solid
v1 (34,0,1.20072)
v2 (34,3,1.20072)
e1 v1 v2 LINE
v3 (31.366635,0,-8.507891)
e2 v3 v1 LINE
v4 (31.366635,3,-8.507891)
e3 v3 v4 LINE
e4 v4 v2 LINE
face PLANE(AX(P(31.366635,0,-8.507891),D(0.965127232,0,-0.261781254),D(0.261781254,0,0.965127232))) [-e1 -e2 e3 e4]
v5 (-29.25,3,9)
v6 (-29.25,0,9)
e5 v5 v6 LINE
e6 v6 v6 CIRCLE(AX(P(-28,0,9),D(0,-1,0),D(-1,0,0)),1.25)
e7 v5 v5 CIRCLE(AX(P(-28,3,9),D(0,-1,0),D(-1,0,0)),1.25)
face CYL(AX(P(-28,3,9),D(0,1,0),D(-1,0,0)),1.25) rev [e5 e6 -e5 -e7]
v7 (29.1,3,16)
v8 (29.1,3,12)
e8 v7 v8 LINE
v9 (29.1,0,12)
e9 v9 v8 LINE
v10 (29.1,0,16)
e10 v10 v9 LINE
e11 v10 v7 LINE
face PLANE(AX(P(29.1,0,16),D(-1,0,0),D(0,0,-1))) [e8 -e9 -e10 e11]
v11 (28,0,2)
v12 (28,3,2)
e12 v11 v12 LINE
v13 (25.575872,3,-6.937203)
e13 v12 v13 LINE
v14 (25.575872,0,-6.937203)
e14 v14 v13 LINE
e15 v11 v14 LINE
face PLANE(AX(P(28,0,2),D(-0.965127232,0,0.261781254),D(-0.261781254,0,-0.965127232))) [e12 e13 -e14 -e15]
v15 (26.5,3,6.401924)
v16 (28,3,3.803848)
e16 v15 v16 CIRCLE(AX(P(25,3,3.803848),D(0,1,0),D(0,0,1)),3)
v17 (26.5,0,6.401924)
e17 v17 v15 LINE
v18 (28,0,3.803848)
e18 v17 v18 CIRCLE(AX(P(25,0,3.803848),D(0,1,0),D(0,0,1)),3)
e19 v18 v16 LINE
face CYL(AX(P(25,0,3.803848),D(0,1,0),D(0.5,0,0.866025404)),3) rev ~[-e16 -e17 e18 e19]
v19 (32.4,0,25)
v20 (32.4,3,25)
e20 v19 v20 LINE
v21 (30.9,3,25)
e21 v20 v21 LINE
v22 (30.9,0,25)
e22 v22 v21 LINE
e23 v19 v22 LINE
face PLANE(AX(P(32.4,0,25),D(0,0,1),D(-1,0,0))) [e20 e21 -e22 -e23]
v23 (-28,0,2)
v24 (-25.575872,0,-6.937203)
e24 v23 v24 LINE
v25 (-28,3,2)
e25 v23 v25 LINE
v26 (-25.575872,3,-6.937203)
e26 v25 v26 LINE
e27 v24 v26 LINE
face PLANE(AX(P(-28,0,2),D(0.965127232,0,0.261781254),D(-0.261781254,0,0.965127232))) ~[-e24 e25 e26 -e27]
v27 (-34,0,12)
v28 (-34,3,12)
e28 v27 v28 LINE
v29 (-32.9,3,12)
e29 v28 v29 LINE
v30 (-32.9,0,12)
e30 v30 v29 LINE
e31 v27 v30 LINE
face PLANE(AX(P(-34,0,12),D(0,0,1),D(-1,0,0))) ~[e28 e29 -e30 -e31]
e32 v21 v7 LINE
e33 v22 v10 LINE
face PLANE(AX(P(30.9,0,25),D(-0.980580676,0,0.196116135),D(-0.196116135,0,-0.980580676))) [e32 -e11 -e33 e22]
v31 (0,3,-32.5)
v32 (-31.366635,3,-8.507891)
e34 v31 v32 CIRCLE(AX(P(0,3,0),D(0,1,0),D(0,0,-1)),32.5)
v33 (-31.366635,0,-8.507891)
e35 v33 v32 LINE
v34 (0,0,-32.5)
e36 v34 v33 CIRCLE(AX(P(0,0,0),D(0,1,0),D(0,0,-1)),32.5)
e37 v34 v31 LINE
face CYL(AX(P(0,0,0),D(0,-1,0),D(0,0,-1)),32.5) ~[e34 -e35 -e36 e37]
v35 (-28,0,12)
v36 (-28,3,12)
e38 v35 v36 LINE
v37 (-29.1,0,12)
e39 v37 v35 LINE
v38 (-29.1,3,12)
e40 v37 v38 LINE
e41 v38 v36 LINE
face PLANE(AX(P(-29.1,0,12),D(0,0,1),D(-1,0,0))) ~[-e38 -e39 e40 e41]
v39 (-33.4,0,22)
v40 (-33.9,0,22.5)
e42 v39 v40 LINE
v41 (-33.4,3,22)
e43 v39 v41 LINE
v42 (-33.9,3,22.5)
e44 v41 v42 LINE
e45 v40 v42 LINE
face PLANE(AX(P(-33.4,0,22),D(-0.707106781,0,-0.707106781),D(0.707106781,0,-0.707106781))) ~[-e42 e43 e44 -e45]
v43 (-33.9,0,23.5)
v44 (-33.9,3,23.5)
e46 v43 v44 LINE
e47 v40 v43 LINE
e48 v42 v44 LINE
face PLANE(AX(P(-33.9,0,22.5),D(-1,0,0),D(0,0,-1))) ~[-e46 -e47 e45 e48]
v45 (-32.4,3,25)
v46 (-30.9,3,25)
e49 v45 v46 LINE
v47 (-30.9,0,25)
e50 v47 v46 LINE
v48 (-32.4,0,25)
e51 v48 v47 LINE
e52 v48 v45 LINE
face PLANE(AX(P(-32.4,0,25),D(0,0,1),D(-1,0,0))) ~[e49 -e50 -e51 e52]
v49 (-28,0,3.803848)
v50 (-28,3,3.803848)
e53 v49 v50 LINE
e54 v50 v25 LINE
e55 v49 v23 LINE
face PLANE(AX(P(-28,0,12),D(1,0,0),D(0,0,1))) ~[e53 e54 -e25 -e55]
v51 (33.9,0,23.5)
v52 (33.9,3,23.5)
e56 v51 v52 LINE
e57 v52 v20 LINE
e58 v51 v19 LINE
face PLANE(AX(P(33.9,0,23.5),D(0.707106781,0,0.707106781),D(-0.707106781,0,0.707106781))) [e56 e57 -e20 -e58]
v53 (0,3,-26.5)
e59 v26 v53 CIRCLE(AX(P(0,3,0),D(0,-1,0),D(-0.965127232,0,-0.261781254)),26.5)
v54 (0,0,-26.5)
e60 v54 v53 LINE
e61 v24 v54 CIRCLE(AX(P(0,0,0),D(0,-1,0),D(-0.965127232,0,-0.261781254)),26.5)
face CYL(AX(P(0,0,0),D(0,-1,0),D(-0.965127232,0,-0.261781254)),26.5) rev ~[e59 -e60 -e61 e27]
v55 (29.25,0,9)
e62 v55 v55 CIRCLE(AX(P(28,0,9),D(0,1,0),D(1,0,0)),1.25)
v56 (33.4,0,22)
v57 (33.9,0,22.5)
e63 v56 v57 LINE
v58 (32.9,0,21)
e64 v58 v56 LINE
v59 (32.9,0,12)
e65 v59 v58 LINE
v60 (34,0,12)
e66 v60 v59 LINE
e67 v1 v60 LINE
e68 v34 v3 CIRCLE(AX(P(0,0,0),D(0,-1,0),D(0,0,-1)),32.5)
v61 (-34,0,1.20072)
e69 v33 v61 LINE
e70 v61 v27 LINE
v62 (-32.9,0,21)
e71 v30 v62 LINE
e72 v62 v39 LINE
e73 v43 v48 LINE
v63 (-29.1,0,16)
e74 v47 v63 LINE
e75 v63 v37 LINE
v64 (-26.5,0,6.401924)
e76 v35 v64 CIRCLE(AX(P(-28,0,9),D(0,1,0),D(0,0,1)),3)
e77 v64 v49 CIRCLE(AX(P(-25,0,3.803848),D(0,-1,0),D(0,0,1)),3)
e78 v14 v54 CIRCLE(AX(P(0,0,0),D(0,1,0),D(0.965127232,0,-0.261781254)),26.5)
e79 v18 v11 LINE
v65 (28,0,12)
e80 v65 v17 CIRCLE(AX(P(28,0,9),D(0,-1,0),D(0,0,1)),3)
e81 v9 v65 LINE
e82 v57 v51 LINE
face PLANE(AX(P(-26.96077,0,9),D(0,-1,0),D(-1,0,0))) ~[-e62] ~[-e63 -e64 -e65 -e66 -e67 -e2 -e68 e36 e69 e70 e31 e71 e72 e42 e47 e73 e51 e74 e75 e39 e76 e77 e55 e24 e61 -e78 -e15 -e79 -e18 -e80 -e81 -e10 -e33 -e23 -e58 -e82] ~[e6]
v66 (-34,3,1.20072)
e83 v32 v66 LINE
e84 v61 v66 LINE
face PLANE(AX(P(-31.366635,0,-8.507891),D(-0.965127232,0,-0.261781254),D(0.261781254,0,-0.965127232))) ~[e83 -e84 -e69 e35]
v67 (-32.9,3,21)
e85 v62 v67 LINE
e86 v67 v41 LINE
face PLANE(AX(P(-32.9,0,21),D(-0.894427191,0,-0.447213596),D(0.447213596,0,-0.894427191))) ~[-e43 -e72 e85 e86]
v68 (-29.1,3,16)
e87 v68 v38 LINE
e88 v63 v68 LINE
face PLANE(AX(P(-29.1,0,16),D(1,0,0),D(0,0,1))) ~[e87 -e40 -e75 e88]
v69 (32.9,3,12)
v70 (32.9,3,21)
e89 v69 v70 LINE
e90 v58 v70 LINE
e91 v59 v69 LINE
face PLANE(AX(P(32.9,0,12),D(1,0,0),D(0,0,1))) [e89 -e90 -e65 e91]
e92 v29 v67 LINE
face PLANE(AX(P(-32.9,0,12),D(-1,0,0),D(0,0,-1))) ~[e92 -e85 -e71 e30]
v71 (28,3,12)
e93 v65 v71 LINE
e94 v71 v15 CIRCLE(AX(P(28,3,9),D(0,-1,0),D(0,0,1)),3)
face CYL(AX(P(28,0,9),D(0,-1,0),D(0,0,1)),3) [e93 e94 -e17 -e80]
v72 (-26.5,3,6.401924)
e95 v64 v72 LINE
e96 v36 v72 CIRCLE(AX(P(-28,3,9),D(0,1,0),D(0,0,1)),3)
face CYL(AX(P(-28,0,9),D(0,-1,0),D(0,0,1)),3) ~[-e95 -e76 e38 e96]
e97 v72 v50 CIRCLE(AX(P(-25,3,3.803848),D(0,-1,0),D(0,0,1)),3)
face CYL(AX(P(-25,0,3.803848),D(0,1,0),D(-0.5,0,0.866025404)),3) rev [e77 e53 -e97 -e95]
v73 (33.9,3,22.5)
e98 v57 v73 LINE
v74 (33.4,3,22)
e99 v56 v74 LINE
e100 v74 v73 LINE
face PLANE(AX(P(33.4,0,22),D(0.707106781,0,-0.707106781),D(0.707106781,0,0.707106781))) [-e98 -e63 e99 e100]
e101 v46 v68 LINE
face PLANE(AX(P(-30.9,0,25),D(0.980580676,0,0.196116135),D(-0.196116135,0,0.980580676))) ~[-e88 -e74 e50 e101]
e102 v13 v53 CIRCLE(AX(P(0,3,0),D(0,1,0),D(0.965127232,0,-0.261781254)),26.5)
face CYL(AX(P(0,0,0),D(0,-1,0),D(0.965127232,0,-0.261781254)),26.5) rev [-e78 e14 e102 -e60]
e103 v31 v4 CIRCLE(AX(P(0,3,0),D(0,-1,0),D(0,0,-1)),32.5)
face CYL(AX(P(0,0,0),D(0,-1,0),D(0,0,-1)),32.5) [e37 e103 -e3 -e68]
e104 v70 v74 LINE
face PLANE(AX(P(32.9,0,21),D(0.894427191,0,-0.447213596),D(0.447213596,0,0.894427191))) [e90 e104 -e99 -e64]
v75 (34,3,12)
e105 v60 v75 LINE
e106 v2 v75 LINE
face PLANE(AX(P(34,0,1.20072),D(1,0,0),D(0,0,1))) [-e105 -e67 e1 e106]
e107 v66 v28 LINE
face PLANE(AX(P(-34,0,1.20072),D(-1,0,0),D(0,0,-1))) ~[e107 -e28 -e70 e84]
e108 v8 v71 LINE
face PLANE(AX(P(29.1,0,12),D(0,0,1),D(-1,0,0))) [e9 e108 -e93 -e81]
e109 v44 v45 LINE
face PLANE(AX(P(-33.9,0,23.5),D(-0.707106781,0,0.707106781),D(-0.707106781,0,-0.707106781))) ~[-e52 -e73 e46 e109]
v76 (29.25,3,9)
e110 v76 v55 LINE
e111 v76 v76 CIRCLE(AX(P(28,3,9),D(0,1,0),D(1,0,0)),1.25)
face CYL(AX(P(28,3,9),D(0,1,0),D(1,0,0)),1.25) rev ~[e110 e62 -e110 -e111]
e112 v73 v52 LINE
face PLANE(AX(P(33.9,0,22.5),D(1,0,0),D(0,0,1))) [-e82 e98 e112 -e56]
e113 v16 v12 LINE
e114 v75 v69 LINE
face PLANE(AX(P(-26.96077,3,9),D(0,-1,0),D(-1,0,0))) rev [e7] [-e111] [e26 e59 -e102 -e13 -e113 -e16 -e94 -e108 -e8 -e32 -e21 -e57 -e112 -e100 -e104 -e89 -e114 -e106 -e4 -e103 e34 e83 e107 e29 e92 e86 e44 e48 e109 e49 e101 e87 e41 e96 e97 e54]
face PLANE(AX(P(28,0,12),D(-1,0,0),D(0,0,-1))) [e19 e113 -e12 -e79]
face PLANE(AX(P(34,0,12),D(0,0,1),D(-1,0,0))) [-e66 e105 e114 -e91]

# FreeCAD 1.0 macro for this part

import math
import FreeCAD as App
import Part
import Sketcher
from FreeCAD import Vector
Q = App.Units.Quantity


def edges_at(feature, points):
    """Names of the edges that pass closest to the given points."""
    edges = feature.Shape.Edges
    near = lambda p: min(range(len(edges)), key=lambda i: edges[i].distToShape(Part.Vertex(*p))[0])
    return sorted({f"Edge{near(p) + 1}" for p in points})

doc = App.newDocument("Part")
body = doc.addObject("PartDesign::Body", "Body")

sketch1 = doc.addObject("Sketcher::SketchObject", "Sketch")
body.addObject(sketch1)
sketch1.AttachmentSupport = (doc.XZ_Plane, [""])
sketch1.MapMode = "FlatFace"
sketch1.addGeometry([
    Part.LineSegment(Vector(29.1, 12, 0), Vector(29.1, 16, 0)),
    Part.LineSegment(Vector(29.1, 16, 0), Vector(30.9, 25, 0)),
    Part.LineSegment(Vector(30.9, 25, 0), Vector(32.4, 25, 0)),
    Part.LineSegment(Vector(32.4, 25, 0), Vector(33.9, 23.5, 0)),
    Part.LineSegment(Vector(33.9, 23.5, 0), Vector(33.9, 22.5, 0)),
    Part.LineSegment(Vector(33.9, 22.5, 0), Vector(33.4, 22, 0)),
    Part.LineSegment(Vector(33.4, 22, 0), Vector(32.9, 21, 0)),
    Part.LineSegment(Vector(32.9, 21, 0), Vector(32.9, 12, 0)),
    Part.LineSegment(Vector(32.9, 12, 0), Vector(34, 12, 0)),
    Part.LineSegment(Vector(34, 12, 0), Vector(34, 1.2, 0)),
    Part.LineSegment(Vector(34, 1.2, 0), Vector(31.4, -8.5, 0)),
    Part.ArcOfCircle(Part.Circle(Vector(0, 0, 0), Vector(0, 0, 1), 32.5), math.radians(-90), math.radians(-15)),
    Part.LineSegment(Vector(0, -32.5, 0), Vector(0, -26.5, 0)),
    Part.ArcOfCircle(Part.Circle(Vector(0, 0, 0), Vector(0, 0, 1), 26.5), math.radians(-90), math.radians(-15)),
    Part.LineSegment(Vector(25.6, -6.9, 0), Vector(28, 2, 0)),
    Part.LineSegment(Vector(28, 2, 0), Vector(28, 12, 0)),
    Part.LineSegment(Vector(28, 12, 0), Vector(29.1, 12, 0)),
], False)
sketch1.addConstraint([
    Sketcher.Constraint("Coincident", 0, 2, 1, 1),
    Sketcher.Constraint("Coincident", 1, 2, 2, 1),
    Sketcher.Constraint("Coincident", 2, 2, 3, 1),
    Sketcher.Constraint("Coincident", 3, 2, 4, 1),
    Sketcher.Constraint("Coincident", 4, 2, 5, 1),
    Sketcher.Constraint("Coincident", 5, 2, 6, 1),
    Sketcher.Constraint("Coincident", 6, 2, 7, 1),
    Sketcher.Constraint("Coincident", 7, 2, 8, 1),
    Sketcher.Constraint("Coincident", 8, 2, 9, 1),
    Sketcher.Constraint("Coincident", 9, 2, 10, 1),
    Sketcher.Constraint("Tangent", 10, 2, 11, 2),
    Sketcher.Constraint("Coincident", 11, 1, 12, 1),
    Sketcher.Constraint("Coincident", 12, 2, 13, 1),
    Sketcher.Constraint("Tangent", 13, 2, 14, 1),
    Sketcher.Constraint("Coincident", 14, 2, 15, 1),
    Sketcher.Constraint("Coincident", 15, 2, 16, 1),
    Sketcher.Constraint("Coincident", 16, 2, 0, 1),
    Sketcher.Constraint("Vertical", 0),
    Sketcher.Constraint("Horizontal", 2),
    Sketcher.Constraint("Vertical", 4),
    Sketcher.Constraint("Vertical", 7),
    Sketcher.Constraint("Horizontal", 8),
    Sketcher.Constraint("Vertical", 9),
    Sketcher.Constraint("Vertical", 12),
    Sketcher.Constraint("Vertical", 15),
    Sketcher.Constraint("Horizontal", 16),
    Sketcher.Constraint("Coincident", 11, 3, -1, 1),
    Sketcher.Constraint("Coincident", 13, 3, -1, 1),
    Sketcher.Constraint("PointOnObject", 11, 1, -2),
    Sketcher.Constraint("Perpendicular", 3, 5),
    Sketcher.Constraint("Parallel", 10, 14),
    Sketcher.Constraint("Horizontal", 8, 2, 15, 2),
    Sketcher.Constraint("Equal", 8, 16),
    Sketcher.Constraint("Radius", 11, 32.5),
    Sketcher.Constraint("Radius", 13, 26.5),
    Sketcher.Constraint("DistanceY", 0, 1, 0, 2, 4.0),
    Sketcher.Constraint("DistanceY", 4, 2, 4, 1, 1.0),
    Sketcher.Constraint("DistanceY", 7, 2, 7, 1, 9.0),
    Sketcher.Constraint("DistanceY", 15, 1, 15, 2, 10.0),
    Sketcher.Constraint("Angle", 3, Q("-45 deg")),
    Sketcher.Constraint("DistanceX", 2, 1, 2, 2, 1.5),
    Sketcher.Constraint("DistanceX", 8, 1, 8, 2, 1.1),
    Sketcher.Constraint("DistanceY", -1, 1, 0, 2, 16.0),
    Sketcher.Constraint("DistanceY", -1, 1, 1, 2, 25.0),
    Sketcher.Constraint("DistanceY", -1, 1, 5, 2, 22.0),
    Sketcher.Constraint("DistanceX", -1, 1, 8, 2, 34.0),
    Sketcher.Constraint("DistanceX", -1, 1, 14, 2, 28.0),
    Sketcher.Constraint("DistanceX", 1, 2, 3, 2, 3.0),
    Sketcher.Constraint("DistanceX", 6, 2, 4, 2, 1.0),
])
pad1 = doc.addObject("PartDesign::Pad", "Pad")
body.addObject(pad1)
pad1.Profile = sketch1
pad1.Length = 3
pad1.Reversed = True

sketch2 = doc.addObject("Sketcher::SketchObject", "Sketch001")
body.addObject(sketch2)
sketch2.AttachmentSupport = (doc.XZ_Plane, [""])
sketch2.MapMode = "FlatFace"
sketch2.addGeometry([
    Part.LineSegment(Vector(28, 12, 0), Vector(28, 6, 0)),
    Part.ArcOfCircle(Part.Circle(Vector(28, 9, 0), Vector(0, 0, 1), 3), math.radians(90), math.radians(270)),
], False)
sketch2.addConstraint([
    Sketcher.Constraint("Coincident", 0, 1, 1, 1),
    Sketcher.Constraint("Coincident", 1, 2, 0, 2),
    Sketcher.Constraint("Vertical", 0),
    Sketcher.Constraint("Vertical", 1, 3, 0, 1),
    Sketcher.Constraint("Radius", 1, 3.0),
    Sketcher.Constraint("DistanceX", -1, 1, 1, 3, 28.0),
    Sketcher.Constraint("DistanceY", -1, 1, 1, 3, 9.0),
])
pad2 = doc.addObject("PartDesign::Pad", "Pad001")
body.addObject(pad2)
pad2.Profile = sketch2
pad2.Length = 3
pad2.Reversed = True
doc.recompute()

fillet = doc.addObject("PartDesign::Fillet", "Fillet")
body.addObject(fillet)
fillet.Base = (pad2, edges_at(pad2, [(28, 1.5, 6)]))
fillet.Radius = 3

sketch3 = doc.addObject("Sketcher::SketchObject", "Sketch002")
body.addObject(sketch3)
sketch3.AttachmentSupport = (doc.XZ_Plane, [""])
sketch3.MapMode = "FlatFace"
sketch3.AttachmentOffset = App.Placement(Vector(0, 0, -3), App.Rotation())
sketch3.addGeometry(Part.Circle(Vector(28, 9, 0), Vector(0, 0, 1), 1.2), False)
sketch3.addConstraint([
    Sketcher.Constraint("Diameter", 0, 2.5),
    Sketcher.Constraint("DistanceX", -1, 1, 0, 3, 28.0),
    Sketcher.Constraint("DistanceY", -1, 1, 0, 3, 9.0),
])
pocket1 = doc.addObject("PartDesign::Pocket", "Pocket")
body.addObject(pocket1)
pocket1.Profile = sketch3
pocket1.Type = "ThroughAll"
pocket1.Reversed = True
body2 = doc.addObject("PartDesign::Body", "Body001")
doc.recompute()

body2.BaseFeature = body
doc.recompute()

mirroring = doc.addObject("Part::Mirroring", "Mirroring")
mirroring.Source = body
mirroring.Base = Vector(0, 0, 0)
mirroring.Normal = Vector(1, 0, 0)
body3 = doc.addObject("PartDesign::Body", "Body002")
body3.BaseFeature = mirroring
boolean = doc.addObject("PartDesign::Boolean", "Boolean")
body2.addObject(boolean)
boolean.Type = "Fuse"
boolean.addObjects([body3])
doc.recompute()
mirroring.Visibility = False

doc.recompute()
